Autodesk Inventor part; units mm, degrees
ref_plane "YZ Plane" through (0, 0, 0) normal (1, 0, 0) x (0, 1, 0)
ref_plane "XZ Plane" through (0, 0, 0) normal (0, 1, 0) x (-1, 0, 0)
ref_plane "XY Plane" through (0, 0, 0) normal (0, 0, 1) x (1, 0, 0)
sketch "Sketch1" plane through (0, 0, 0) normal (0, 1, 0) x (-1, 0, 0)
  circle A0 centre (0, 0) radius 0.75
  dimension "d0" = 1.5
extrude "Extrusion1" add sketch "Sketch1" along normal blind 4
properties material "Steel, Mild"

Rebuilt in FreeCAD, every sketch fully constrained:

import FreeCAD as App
import Part
import Sketcher
from FreeCAD import Vector
Q = App.Units.Quantity

doc = App.newDocument("Part")
body = doc.addObject("PartDesign::Body", "Body")

sketch1 = body.newObject("Sketcher::SketchObject", "Sketch")
sketch1.AttachmentSupport = (doc.getObject("XZ_Plane"), [""])
sketch1.MapMode = "FlatFace"
sketch1.addGeometry(Part.Circle(Vector(0, 0, 0), Vector(0, 0, 1), 0.75), False)
sketch1.addConstraint([
    Sketcher.Constraint("Coincident", 0, 3, -1, 1),
    Sketcher.Constraint("Diameter", 0, Q("1.5 mm")),
])
pad1 = body.newObject("PartDesign::Pad", "Pad")
pad1.Profile = sketch1
pad1.Length = 4
pad1.Reversed = True

doc.recompute()
